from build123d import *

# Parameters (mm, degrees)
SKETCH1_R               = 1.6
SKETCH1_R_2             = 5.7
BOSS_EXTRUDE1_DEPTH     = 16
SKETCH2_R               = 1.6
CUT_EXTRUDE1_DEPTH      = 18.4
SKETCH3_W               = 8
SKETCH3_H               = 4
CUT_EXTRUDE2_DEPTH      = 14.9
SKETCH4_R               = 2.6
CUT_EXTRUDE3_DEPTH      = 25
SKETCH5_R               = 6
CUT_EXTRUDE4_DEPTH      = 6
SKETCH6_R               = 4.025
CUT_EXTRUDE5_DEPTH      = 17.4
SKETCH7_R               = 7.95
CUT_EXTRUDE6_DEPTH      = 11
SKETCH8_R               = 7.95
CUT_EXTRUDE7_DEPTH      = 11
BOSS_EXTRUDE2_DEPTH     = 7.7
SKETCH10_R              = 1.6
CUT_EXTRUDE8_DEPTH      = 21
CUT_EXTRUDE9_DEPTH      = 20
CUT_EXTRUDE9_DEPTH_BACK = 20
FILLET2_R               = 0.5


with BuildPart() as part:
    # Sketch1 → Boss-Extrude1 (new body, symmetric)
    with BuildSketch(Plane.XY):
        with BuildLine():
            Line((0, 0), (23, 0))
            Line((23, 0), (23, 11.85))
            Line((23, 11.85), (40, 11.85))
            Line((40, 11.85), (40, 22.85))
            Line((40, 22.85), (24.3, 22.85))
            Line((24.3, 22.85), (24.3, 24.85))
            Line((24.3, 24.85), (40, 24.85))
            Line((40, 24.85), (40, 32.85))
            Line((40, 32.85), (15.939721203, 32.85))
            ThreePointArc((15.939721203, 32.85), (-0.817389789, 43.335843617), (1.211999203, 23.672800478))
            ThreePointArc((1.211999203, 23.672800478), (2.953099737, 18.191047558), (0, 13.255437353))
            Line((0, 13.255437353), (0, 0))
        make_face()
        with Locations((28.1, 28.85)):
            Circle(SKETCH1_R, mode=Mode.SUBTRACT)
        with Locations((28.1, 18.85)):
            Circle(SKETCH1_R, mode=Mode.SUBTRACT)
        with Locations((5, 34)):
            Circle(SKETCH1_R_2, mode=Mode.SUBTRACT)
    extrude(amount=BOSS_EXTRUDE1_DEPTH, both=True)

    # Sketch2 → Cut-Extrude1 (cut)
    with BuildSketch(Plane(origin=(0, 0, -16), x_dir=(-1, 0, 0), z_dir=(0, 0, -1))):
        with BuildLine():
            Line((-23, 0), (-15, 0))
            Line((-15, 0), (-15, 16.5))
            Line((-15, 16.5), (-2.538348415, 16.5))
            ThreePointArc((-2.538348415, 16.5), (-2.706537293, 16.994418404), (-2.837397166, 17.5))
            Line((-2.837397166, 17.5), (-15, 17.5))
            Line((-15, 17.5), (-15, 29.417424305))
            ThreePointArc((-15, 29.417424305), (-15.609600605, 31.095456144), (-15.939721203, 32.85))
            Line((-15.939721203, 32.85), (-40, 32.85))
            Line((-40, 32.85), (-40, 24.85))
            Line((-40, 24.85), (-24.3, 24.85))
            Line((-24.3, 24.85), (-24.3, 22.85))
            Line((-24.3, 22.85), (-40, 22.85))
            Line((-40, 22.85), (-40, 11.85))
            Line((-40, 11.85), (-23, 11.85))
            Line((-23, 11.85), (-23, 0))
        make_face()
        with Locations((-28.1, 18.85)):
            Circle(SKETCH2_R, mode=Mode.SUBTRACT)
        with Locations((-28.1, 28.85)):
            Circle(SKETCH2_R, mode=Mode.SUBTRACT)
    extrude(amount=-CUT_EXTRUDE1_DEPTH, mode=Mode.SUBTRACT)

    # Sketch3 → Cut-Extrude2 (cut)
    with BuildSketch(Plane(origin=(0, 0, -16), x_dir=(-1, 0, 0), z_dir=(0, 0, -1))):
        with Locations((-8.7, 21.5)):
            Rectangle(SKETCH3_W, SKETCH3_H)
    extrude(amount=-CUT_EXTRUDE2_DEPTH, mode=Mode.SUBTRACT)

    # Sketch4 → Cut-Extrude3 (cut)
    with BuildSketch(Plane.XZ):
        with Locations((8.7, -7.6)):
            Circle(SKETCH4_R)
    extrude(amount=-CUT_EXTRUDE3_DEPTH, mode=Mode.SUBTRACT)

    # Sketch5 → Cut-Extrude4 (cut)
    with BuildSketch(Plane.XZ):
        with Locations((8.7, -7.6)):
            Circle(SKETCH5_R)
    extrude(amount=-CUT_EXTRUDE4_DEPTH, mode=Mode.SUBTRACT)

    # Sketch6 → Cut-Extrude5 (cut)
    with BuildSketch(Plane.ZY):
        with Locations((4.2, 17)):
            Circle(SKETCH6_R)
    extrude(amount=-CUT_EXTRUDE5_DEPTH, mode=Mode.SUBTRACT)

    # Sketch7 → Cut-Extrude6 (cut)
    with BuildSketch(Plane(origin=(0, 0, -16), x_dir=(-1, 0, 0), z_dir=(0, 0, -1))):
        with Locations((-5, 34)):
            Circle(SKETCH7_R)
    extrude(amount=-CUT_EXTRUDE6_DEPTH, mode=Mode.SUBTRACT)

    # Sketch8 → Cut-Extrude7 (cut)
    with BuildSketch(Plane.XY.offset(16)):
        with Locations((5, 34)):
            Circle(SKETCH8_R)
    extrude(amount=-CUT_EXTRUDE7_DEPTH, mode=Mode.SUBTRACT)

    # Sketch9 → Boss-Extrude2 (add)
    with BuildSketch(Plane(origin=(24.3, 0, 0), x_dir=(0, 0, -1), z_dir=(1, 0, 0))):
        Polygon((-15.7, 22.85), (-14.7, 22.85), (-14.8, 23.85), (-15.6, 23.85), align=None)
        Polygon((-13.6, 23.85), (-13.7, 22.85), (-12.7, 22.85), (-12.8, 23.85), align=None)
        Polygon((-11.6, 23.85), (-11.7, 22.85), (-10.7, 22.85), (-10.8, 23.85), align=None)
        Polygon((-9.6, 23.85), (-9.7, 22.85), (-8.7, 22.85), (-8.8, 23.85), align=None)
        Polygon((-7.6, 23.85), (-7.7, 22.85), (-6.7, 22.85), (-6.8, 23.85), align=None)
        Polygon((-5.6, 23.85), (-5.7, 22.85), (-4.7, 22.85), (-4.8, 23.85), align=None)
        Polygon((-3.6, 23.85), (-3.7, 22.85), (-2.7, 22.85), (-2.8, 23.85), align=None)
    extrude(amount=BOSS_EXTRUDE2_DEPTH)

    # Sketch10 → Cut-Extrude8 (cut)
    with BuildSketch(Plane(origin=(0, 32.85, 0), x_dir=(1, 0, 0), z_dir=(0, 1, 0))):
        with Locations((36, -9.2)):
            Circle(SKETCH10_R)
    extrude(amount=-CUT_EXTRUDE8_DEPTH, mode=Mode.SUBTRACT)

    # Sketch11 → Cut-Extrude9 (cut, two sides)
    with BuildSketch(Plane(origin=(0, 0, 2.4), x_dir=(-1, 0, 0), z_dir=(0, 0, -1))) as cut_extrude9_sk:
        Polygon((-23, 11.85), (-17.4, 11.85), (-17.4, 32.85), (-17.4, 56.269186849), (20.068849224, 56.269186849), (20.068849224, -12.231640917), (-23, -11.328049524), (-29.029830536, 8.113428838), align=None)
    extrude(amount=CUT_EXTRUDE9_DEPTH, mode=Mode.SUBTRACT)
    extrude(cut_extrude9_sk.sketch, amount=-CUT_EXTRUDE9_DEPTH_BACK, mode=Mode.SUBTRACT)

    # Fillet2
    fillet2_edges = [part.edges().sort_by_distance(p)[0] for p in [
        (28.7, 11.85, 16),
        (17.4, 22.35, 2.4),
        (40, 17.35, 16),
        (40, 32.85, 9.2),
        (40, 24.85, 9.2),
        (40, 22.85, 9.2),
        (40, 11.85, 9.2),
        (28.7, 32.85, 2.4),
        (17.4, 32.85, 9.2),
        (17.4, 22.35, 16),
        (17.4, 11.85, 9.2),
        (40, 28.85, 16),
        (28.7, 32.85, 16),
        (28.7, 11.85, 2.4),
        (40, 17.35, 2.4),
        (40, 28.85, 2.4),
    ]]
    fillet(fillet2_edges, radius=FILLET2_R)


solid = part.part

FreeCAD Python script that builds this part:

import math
import FreeCAD as App
import Part
import Sketcher


def edges_at(feature, points):
    """Names of the edges that pass closest to the given points."""
    edges = feature.Shape.Edges
    near = lambda p: min(range(len(edges)), key=lambda i: edges[i].distToShape(Part.Vertex(*p))[0])
    return sorted({f"Edge{near(p) + 1}" for p in points})

doc = App.newDocument("Part")
body = doc.addObject("PartDesign::Body", "Body")

# Sketch on XY plane
sketch1 = body.newObject("Sketcher::SketchObject", "Sketch")
sketch1.AttachmentSupport = (doc.getObject("XY_Plane"), [""])
sketch1.MapMode = "FlatFace"
sketch1.addGeometry([
    Part.LineSegment(App.Vector(0, 0, 0), App.Vector(23, 0, 0)),  # 0
    Part.LineSegment(App.Vector(23, 0, 0), App.Vector(23, 11.85, 0)),  # 1
    Part.LineSegment(App.Vector(23, 11.85, 0), App.Vector(40, 11.85, 0)),  # 2
    Part.LineSegment(App.Vector(40, 11.85, 0), App.Vector(40, 22.85, 0)),  # 3
    Part.LineSegment(App.Vector(40, 22.85, 0), App.Vector(24.3, 22.85, 0)),  # 4
    Part.LineSegment(App.Vector(24.3, 22.85, 0), App.Vector(24.3, 24.85, 0)),  # 5
    Part.LineSegment(App.Vector(24.3, 24.85, 0), App.Vector(40, 24.85, 0)),  # 6
    Part.LineSegment(App.Vector(40, 24.85, 0), App.Vector(40, 32.85, 0)),  # 7
    Part.LineSegment(App.Vector(40, 32.85, 0), App.Vector(15.939721, 32.85, 0)),  # 8
    Part.ArcOfCircle(Part.Circle(App.Vector(5, 34, 0), App.Vector(0, 0, 1), 11), math.radians(-6.000979), math.radians(249.857041)),  # 9
    Part.ArcOfCircle(Part.Circle(App.Vector(-4, 19, 0), App.Vector(0, 0, 1), 7), math.radians(-55.150095), math.radians(41.877709)),  # 10
    Part.LineSegment(App.Vector(0, 13.255437, 0), App.Vector(0, 0, 0)),  # 11
    Part.Circle(App.Vector(28.1, 18.85, 0), App.Vector(0, 0, 1), 1.6),  # 12
    Part.Circle(App.Vector(5, 34, 0), App.Vector(0, 0, 1), 5.7),  # 13
    Part.Circle(App.Vector(28.1, 28.85, 0), App.Vector(0, 0, 1), 1.6),  # 14
], False)
sketch1.addConstraint([
    Sketcher.Constraint("Coincident", 0, 2, 1, 1),
    Sketcher.Constraint("Coincident", 1, 2, 2, 1),
    Sketcher.Constraint("Coincident", 2, 2, 3, 1),
    Sketcher.Constraint("Coincident", 3, 2, 4, 1),
    Sketcher.Constraint("Coincident", 4, 2, 5, 1),
    Sketcher.Constraint("Coincident", 5, 2, 6, 1),
    Sketcher.Constraint("Coincident", 6, 2, 7, 1),
    Sketcher.Constraint("Coincident", 7, 2, 8, 1),
    Sketcher.Constraint("Coincident", 8, 2, 9, 1),
    Sketcher.Constraint("Coincident", 9, 2, 10, 2),
    Sketcher.Constraint("Coincident", 10, 1, 11, 1),
    Sketcher.Constraint("Coincident", 11, 2, 0, 1),
    Sketcher.Constraint("Horizontal", 0),
    Sketcher.Constraint("Vertical", 1),
    Sketcher.Constraint("Horizontal", 2),
    Sketcher.Constraint("Vertical", 3),
    Sketcher.Constraint("Horizontal", 4),
    Sketcher.Constraint("Vertical", 5),
    Sketcher.Constraint("Horizontal", 6),
    Sketcher.Constraint("Vertical", 7),
    Sketcher.Constraint("Horizontal", 8),
    Sketcher.Constraint("Vertical", 11),
    Sketcher.Constraint("Coincident", 11, 2, -1, 1),
    Sketcher.Constraint("Coincident", 13, 3, 9, 3),
    Sketcher.Constraint("Equal", 12, 14),
    Sketcher.Constraint("Vertical", 12, 3, 14, 3),
    Sketcher.Constraint("Vertical", 3, 2, 6, 2),
    Sketcher.Constraint("Radius", 9, 11.0),
    Sketcher.Constraint("Radius", 10, 7.0),
    Sketcher.Constraint("Diameter", 12, 3.2),
    Sketcher.Constraint("Diameter", 13, 11.4),
    Sketcher.Constraint("DistanceX", 0, 1, 0, 2, 23.0),
    Sketcher.Constraint("DistanceX", 2, 1, 2, 2, 17.0),
    Sketcher.Constraint("DistanceY", 3, 1, 3, 2, 11.0),
    Sketcher.Constraint("DistanceY", 5, 1, 5, 2, 2.0),
    Sketcher.Constraint("DistanceY", 7, 1, 7, 2, 8.0),
    Sketcher.Constraint("DistanceX", 4, 2, 4, 1, 15.7),
    Sketcher.Constraint("DistanceX", -1, 1, 9, 3, 5.0),
    Sketcher.Constraint("DistanceY", -1, 1, 9, 3, 34.0),
    Sketcher.Constraint("DistanceX", 10, 3, -1, 1, 4.0),
    Sketcher.Constraint("DistanceY", -1, 1, 10, 3, 19.0),
    Sketcher.Constraint("DistanceY", 12, 3, 14, 3, 10.0),
    Sketcher.Constraint("DistanceY", 1, 2, 12, 3, 7.0),
    Sketcher.Constraint("DistanceY", 1, 1, 1, 2, 11.85),
    Sketcher.Constraint("DistanceX", -1, 1, 12, 3, 28.1),
])
pad1 = body.newObject("PartDesign::Pad", "Pad")
pad1.Profile = sketch1
pad1.Length = 32
pad1.Midplane = True

# Sketch on XY plane
sketch2 = body.newObject("Sketcher::SketchObject", "Sketch001")
sketch2.AttachmentSupport = (doc.getObject("XY_Plane"), [""])
sketch2.MapMode = "FlatFace"
sketch2.AttachmentOffset = App.Placement(App.Vector(0, 0, -16), App.Rotation())
sketch2.addGeometry([
    Part.LineSegment(App.Vector(23, 0, 0), App.Vector(15, 0, 0)),  # 0
    Part.LineSegment(App.Vector(15, 0, 0), App.Vector(15, 16.5, 0)),  # 1
    Part.LineSegment(App.Vector(15, 16.5, 0), App.Vector(2.538348, 16.5, 0)),  # 2
    Part.ArcOfCircle(Part.Circle(App.Vector(-4, 19, 0), App.Vector(0, 0, 1), 7), math.radians(-20.924832), math.radians(-12.373625)),  # 3
    Part.LineSegment(App.Vector(2.837397, 17.5, 0), App.Vector(15, 17.5, 0)),  # 4
    Part.LineSegment(App.Vector(15, 17.5, 0), App.Vector(15, 29.417424, 0)),  # 5
    Part.ArcOfCircle(Part.Circle(App.Vector(5, 34, 0), App.Vector(0, 0, 1), 11), math.radians(-24.619977), math.radians(-6.000979)),  # 6
    Part.LineSegment(App.Vector(15.939721, 32.85, 0), App.Vector(40, 32.85, 0)),  # 7
    Part.LineSegment(App.Vector(40, 32.85, 0), App.Vector(40, 24.85, 0)),  # 8
    Part.LineSegment(App.Vector(40, 24.85, 0), App.Vector(24.3, 24.85, 0)),  # 9
    Part.LineSegment(App.Vector(24.3, 24.85, 0), App.Vector(24.3, 22.85, 0)),  # 10
    Part.LineSegment(App.Vector(24.3, 22.85, 0), App.Vector(40, 22.85, 0)),  # 11
    Part.LineSegment(App.Vector(40, 22.85, 0), App.Vector(40, 11.85, 0)),  # 12
    Part.LineSegment(App.Vector(40, 11.85, 0), App.Vector(23, 11.85, 0)),  # 13
    Part.LineSegment(App.Vector(23, 11.85, 0), App.Vector(23, 0, 0)),  # 14
    Part.Circle(App.Vector(28.1, 18.85, 0), App.Vector(0, 0, 1), 1.6),  # 15
    Part.Circle(App.Vector(28.1, 28.85, 0), App.Vector(0, 0, 1), 1.6),  # 16
], False)
sketch2.addConstraint([
    Sketcher.Constraint("Coincident", 0, 2, 1, 1),
    Sketcher.Constraint("Coincident", 1, 2, 2, 1),
    Sketcher.Constraint("Coincident", 2, 2, 3, 1),
    Sketcher.Constraint("Coincident", 3, 2, 4, 1),
    Sketcher.Constraint("Coincident", 4, 2, 5, 1),
    Sketcher.Constraint("Coincident", 5, 2, 6, 1),
    Sketcher.Constraint("Coincident", 6, 2, 7, 1),
    Sketcher.Constraint("Coincident", 7, 2, 8, 1),
    Sketcher.Constraint("Coincident", 8, 2, 9, 1),
    Sketcher.Constraint("Coincident", 9, 2, 10, 1),
    Sketcher.Constraint("Coincident", 10, 2, 11, 1),
    Sketcher.Constraint("Coincident", 11, 2, 12, 1),
    Sketcher.Constraint("Coincident", 12, 2, 13, 1),
    Sketcher.Constraint("Coincident", 13, 2, 14, 1),
    Sketcher.Constraint("Coincident", 14, 2, 0, 1),
    Sketcher.Constraint("Horizontal", 0),
    Sketcher.Constraint("Vertical", 1),
    Sketcher.Constraint("Horizontal", 2),
    Sketcher.Constraint("Horizontal", 4),
    Sketcher.Constraint("Vertical", 5),
    Sketcher.Constraint("Horizontal", 7),
    Sketcher.Constraint("Vertical", 8),
    Sketcher.Constraint("Horizontal", 9),
    Sketcher.Constraint("Vertical", 10),
    Sketcher.Constraint("Horizontal", 11),
    Sketcher.Constraint("Vertical", 12),
    Sketcher.Constraint("Horizontal", 13),
    Sketcher.Constraint("Vertical", 14),
    Sketcher.Constraint("Equal", 15, 16),
    Sketcher.Constraint("PointOnObject", 0, 2, -1),
    Sketcher.Constraint("Vertical", 15, 3, 16, 3),
    Sketcher.Constraint("Vertical", 1, 2, 4, 2),
    Sketcher.Constraint("Vertical", 8, 2, 11, 2),
    Sketcher.Constraint("Equal", 0, 8),
    Sketcher.Constraint("Radius", 3, 7.0),
    Sketcher.Constraint("Radius", 6, 11.0),
    Sketcher.Constraint("Diameter", 15, 3.2),
    Sketcher.Constraint("DistanceX", 0, 2, 0, 1, 8.0),
    Sketcher.Constraint("DistanceX", 13, 2, 13, 1, 17.0),
    Sketcher.Constraint("DistanceY", 10, 2, 10, 1, 2.0),
    Sketcher.Constraint("DistanceY", 12, 2, 12, 1, 11.0),
    Sketcher.Constraint("DistanceX", 9, 2, 9, 1, 15.7),
    Sketcher.Constraint("DistanceY", 1, 1, 1, 2, 16.5),
    Sketcher.Constraint("DistanceX", 3, 3, -1, 1, 4.0),
    Sketcher.Constraint("DistanceY", -1, 1, 3, 3, 19.0),
    Sketcher.Constraint("DistanceX", -1, 1, 6, 3, 5.0),
    Sketcher.Constraint("DistanceY", -1, 1, 6, 3, 34.0),
    Sketcher.Constraint("DistanceX", -1, 1, 0, 2, 15.0),
    Sketcher.Constraint("DistanceY", 15, 3, 16, 3, 10.0),
    Sketcher.Constraint("DistanceY", 2, 2, 3, 2, 1.0),
    Sketcher.Constraint("DistanceY", 16, 3, 6, 2, 4.0),
    Sketcher.Constraint("DistanceY", 14, 2, 14, 1, 11.85),
    Sketcher.Constraint("DistanceX", -1, 1, 15, 3, 28.1),
])
pocket1 = body.newObject("PartDesign::Pocket", "Pocket")
pocket1.Profile = sketch2
pocket1.Length = 18.4
pocket1.Reversed = True

# Sketch on XY plane
sketch3 = body.newObject("Sketcher::SketchObject", "Sketch002")
sketch3.AttachmentSupport = (doc.getObject("XY_Plane"), [""])
sketch3.MapMode = "FlatFace"
sketch3.AttachmentOffset = App.Placement(App.Vector(0, 0, -16), App.Rotation())
sketch3.addGeometry([
    Part.LineSegment(App.Vector(12.7, 23.5, 0), App.Vector(12.7, 19.5, 0)),
    Part.LineSegment(App.Vector(12.7, 19.5, 0), App.Vector(4.7, 19.5, 0)),
    Part.LineSegment(App.Vector(4.7, 19.5, 0), App.Vector(4.7, 23.5, 0)),
    Part.LineSegment(App.Vector(4.7, 23.5, 0), App.Vector(12.7, 23.5, 0)),
], False)
sketch3.addConstraint([
    Sketcher.Constraint("Coincident", 0, 2, 1, 1),
    Sketcher.Constraint("Coincident", 1, 2, 2, 1),
    Sketcher.Constraint("Coincident", 2, 2, 3, 1),
    Sketcher.Constraint("Coincident", 3, 2, 0, 1),
    Sketcher.Constraint("Vertical", 0),
    Sketcher.Constraint("Horizontal", 1),
    Sketcher.Constraint("Vertical", 2),
    Sketcher.Constraint("Horizontal", 3),
    Sketcher.Constraint("DistanceX", 1, 2, 1, 1, 8.0),
    Sketcher.Constraint("DistanceY", 0, 2, 0, 1, 4.0),
    Sketcher.Constraint("DistanceX", -1, 1, 0, 2, 12.7),
    Sketcher.Constraint("DistanceY", -1, 1, 0, 2, 19.5),
])
pocket2 = body.newObject("PartDesign::Pocket", "Pocket001")
pocket2.Profile = sketch3
pocket2.Length = 14.9
pocket2.Reversed = True

# Sketch on XZ plane
sketch4 = body.newObject("Sketcher::SketchObject", "Sketch003")
sketch4.AttachmentSupport = (doc.getObject("XZ_Plane"), [""])
sketch4.MapMode = "FlatFace"
sketch4.addGeometry(Part.Circle(App.Vector(8.7, -7.6, 0), App.Vector(0, 0, 1), 2.6), False)
sketch4.addConstraint([
    Sketcher.Constraint("Diameter", 0, 5.2),
    Sketcher.Constraint("DistanceX", -1, 1, 0, 3, 8.7),
    Sketcher.Constraint("DistanceY", 0, 3, -1, 1, 7.6),
])
pocket3 = body.newObject("PartDesign::Pocket", "Pocket002")
pocket3.Profile = sketch4
pocket3.Length = 25

# Sketch on XZ plane
sketch5 = body.newObject("Sketcher::SketchObject", "Sketch004")
sketch5.AttachmentSupport = (doc.getObject("XZ_Plane"), [""])
sketch5.MapMode = "FlatFace"
sketch5.addGeometry(Part.Circle(App.Vector(8.7, -7.6, 0), App.Vector(0, 0, 1), 6), False)
sketch5.addConstraint([
    Sketcher.Constraint("Diameter", 0, 12.0),
    Sketcher.Constraint("DistanceX", -1, 1, 0, 3, 8.7),
    Sketcher.Constraint("DistanceY", 0, 3, -1, 1, 7.6),
])
pocket4 = body.newObject("PartDesign::Pocket", "Pocket003")
pocket4.Profile = sketch5
pocket4.Length = 6

# Sketch on YZ plane
sketch6 = body.newObject("Sketcher::SketchObject", "Sketch005")
sketch6.AttachmentSupport = (doc.getObject("YZ_Plane"), [""])
sketch6.MapMode = "FlatFace"
sketch6.addGeometry(Part.Circle(App.Vector(17, 4.2, 0), App.Vector(0, 0, 1), 4.025), False)
sketch6.addConstraint([
    Sketcher.Constraint("Diameter", 0, 8.05),
    Sketcher.Constraint("DistanceX", -1, 1, 0, 3, 17.0),
    Sketcher.Constraint("DistanceY", -1, 1, 0, 3, 4.2),
])
pocket5 = body.newObject("PartDesign::Pocket", "Pocket004")
pocket5.Profile = sketch6
pocket5.Length = 17.4
pocket5.Reversed = True

# Sketch on XY plane
sketch7 = body.newObject("Sketcher::SketchObject", "Sketch006")
sketch7.AttachmentSupport = (doc.getObject("XY_Plane"), [""])
sketch7.MapMode = "FlatFace"
sketch7.AttachmentOffset = App.Placement(App.Vector(0, 0, -16), App.Rotation())
sketch7.addGeometry(Part.Circle(App.Vector(5, 34, 0), App.Vector(0, 0, 1), 7.95), False)
sketch7.addConstraint([
    Sketcher.Constraint("Diameter", 0, 15.9),
    Sketcher.Constraint("DistanceX", -1, 1, 0, 3, 5.0),
    Sketcher.Constraint("DistanceY", -1, 1, 0, 3, 34.0),
])
pocket6 = body.newObject("PartDesign::Pocket", "Pocket005")
pocket6.Profile = sketch7
pocket6.Length = 11
pocket6.Reversed = True

# Sketch on XY plane
sketch8 = body.newObject("Sketcher::SketchObject", "Sketch007")
sketch8.AttachmentSupport = (doc.getObject("XY_Plane"), [""])
sketch8.MapMode = "FlatFace"
sketch8.AttachmentOffset = App.Placement(App.Vector(0, 0, 16), App.Rotation())
sketch8.addGeometry(Part.Circle(App.Vector(5, 34, 0), App.Vector(0, 0, 1), 7.95), False)
sketch8.addConstraint([
    Sketcher.Constraint("Diameter", 0, 15.9),
    Sketcher.Constraint("DistanceX", -1, 1, 0, 3, 5.0),
    Sketcher.Constraint("DistanceY", -1, 1, 0, 3, 34.0),
])
pocket7 = body.newObject("PartDesign::Pocket", "Pocket006")
pocket7.Profile = sketch8
pocket7.Length = 11

# Sketch on YZ plane
sketch9 = body.newObject("Sketcher::SketchObject", "Sketch008")
sketch9.AttachmentSupport = (doc.getObject("YZ_Plane"), [""])
sketch9.MapMode = "FlatFace"
sketch9.AttachmentOffset = App.Placement(App.Vector(0, 0, 24.3), App.Rotation())
sketch9.addGeometry([
    Part.LineSegment(App.Vector(22.85, 15.7, 0), App.Vector(22.85, 14.7, 0)),  # 0
    Part.LineSegment(App.Vector(22.85, 14.7, 0), App.Vector(23.85, 14.8, 0)),  # 1
    Part.LineSegment(App.Vector(23.85, 14.8, 0), App.Vector(23.85, 15.6, 0)),  # 2
    Part.LineSegment(App.Vector(23.85, 15.6, 0), App.Vector(22.85, 15.7, 0)),  # 3
    Part.LineSegment(App.Vector(23.85, 13.6, 0), App.Vector(22.85, 13.7, 0)),  # 4
    Part.LineSegment(App.Vector(22.85, 13.7, 0), App.Vector(22.85, 12.7, 0)),  # 5
    Part.LineSegment(App.Vector(22.85, 12.7, 0), App.Vector(23.85, 12.8, 0)),  # 6
    Part.LineSegment(App.Vector(23.85, 12.8, 0), App.Vector(23.85, 13.6, 0)),  # 7
    Part.LineSegment(App.Vector(23.85, 11.6, 0), App.Vector(22.85, 11.7, 0)),  # 8
    Part.LineSegment(App.Vector(22.85, 11.7, 0), App.Vector(22.85, 10.7, 0)),  # 9
    Part.LineSegment(App.Vector(22.85, 10.7, 0), App.Vector(23.85, 10.8, 0)),  # 10
    Part.LineSegment(App.Vector(23.85, 10.8, 0), App.Vector(23.85, 11.6, 0)),  # 11
    Part.LineSegment(App.Vector(23.85, 9.6, 0), App.Vector(22.85, 9.7, 0)),  # 12
    Part.LineSegment(App.Vector(22.85, 9.7, 0), App.Vector(22.85, 8.7, 0)),  # 13
    Part.LineSegment(App.Vector(22.85, 8.7, 0), App.Vector(23.85, 8.8, 0)),  # 14
    Part.LineSegment(App.Vector(23.85, 8.8, 0), App.Vector(23.85, 9.6, 0)),  # 15
    Part.LineSegment(App.Vector(23.85, 7.6, 0), App.Vector(22.85, 7.7, 0)),  # 16
    Part.LineSegment(App.Vector(22.85, 7.7, 0), App.Vector(22.85, 6.7, 0)),  # 17
    Part.LineSegment(App.Vector(22.85, 6.7, 0), App.Vector(23.85, 6.8, 0)),  # 18
    Part.LineSegment(App.Vector(23.85, 6.8, 0), App.Vector(23.85, 7.6, 0)),  # 19
    Part.LineSegment(App.Vector(23.85, 5.6, 0), App.Vector(22.85, 5.7, 0)),  # 20
    Part.LineSegment(App.Vector(22.85, 5.7, 0), App.Vector(22.85, 4.7, 0)),  # 21
    Part.LineSegment(App.Vector(22.85, 4.7, 0), App.Vector(23.85, 4.8, 0)),  # 22
    Part.LineSegment(App.Vector(23.85, 4.8, 0), App.Vector(23.85, 5.6, 0)),  # 23
    Part.LineSegment(App.Vector(23.85, 3.6, 0), App.Vector(22.85, 3.7, 0)),  # 24
    Part.LineSegment(App.Vector(22.85, 3.7, 0), App.Vector(22.85, 2.7, 0)),  # 25
    Part.LineSegment(App.Vector(22.85, 2.7, 0), App.Vector(23.85, 2.8, 0)),  # 26
    Part.LineSegment(App.Vector(23.85, 2.8, 0), App.Vector(23.85, 3.6, 0)),  # 27
], False)
sketch9.addConstraint([
    Sketcher.Constraint("Coincident", 0, 2, 1, 1),
    Sketcher.Constraint("Coincident", 1, 2, 2, 1),
    Sketcher.Constraint("Coincident", 2, 2, 3, 1),
    Sketcher.Constraint("Coincident", 3, 2, 0, 1),
    Sketcher.Constraint("Coincident", 4, 2, 5, 1),
    Sketcher.Constraint("Coincident", 5, 2, 6, 1),
    Sketcher.Constraint("Coincident", 6, 2, 7, 1),
    Sketcher.Constraint("Coincident", 7, 2, 4, 1),
    Sketcher.Constraint("Coincident", 8, 2, 9, 1),
    Sketcher.Constraint("Coincident", 9, 2, 10, 1),
    Sketcher.Constraint("Coincident", 10, 2, 11, 1),
    Sketcher.Constraint("Coincident", 11, 2, 8, 1),
    Sketcher.Constraint("Coincident", 12, 2, 13, 1),
    Sketcher.Constraint("Coincident", 13, 2, 14, 1),
    Sketcher.Constraint("Coincident", 14, 2, 15, 1),
    Sketcher.Constraint("Coincident", 15, 2, 12, 1),
    Sketcher.Constraint("Coincident", 16, 2, 17, 1),
    Sketcher.Constraint("Coincident", 17, 2, 18, 1),
    Sketcher.Constraint("Coincident", 18, 2, 19, 1),
    Sketcher.Constraint("Coincident", 19, 2, 16, 1),
    Sketcher.Constraint("Coincident", 20, 2, 21, 1),
    Sketcher.Constraint("Coincident", 21, 2, 22, 1),
    Sketcher.Constraint("Coincident", 22, 2, 23, 1),
    Sketcher.Constraint("Coincident", 23, 2, 20, 1),
    Sketcher.Constraint("Coincident", 24, 2, 25, 1),
    Sketcher.Constraint("Coincident", 25, 2, 26, 1),
    Sketcher.Constraint("Coincident", 26, 2, 27, 1),
    Sketcher.Constraint("Coincident", 27, 2, 24, 1),
    Sketcher.Constraint("Vertical", 0),
    Sketcher.Constraint("Vertical", 2),
    Sketcher.Constraint("Vertical", 5),
    Sketcher.Constraint("Vertical", 7),
    Sketcher.Constraint("Vertical", 9),
    Sketcher.Constraint("Vertical", 11),
    Sketcher.Constraint("Vertical", 13),
    Sketcher.Constraint("Vertical", 15),
    Sketcher.Constraint("Vertical", 17),
    Sketcher.Constraint("Vertical", 19),
    Sketcher.Constraint("Vertical", 21),
    Sketcher.Constraint("Vertical", 23),
    Sketcher.Constraint("Vertical", 25),
    Sketcher.Constraint("Vertical", 27),
    Sketcher.Constraint("Parallel", 3, 4),
    Sketcher.Constraint("Parallel", 1, 6),
    Sketcher.Constraint("Parallel", 4, 8),
    Sketcher.Constraint("Parallel", 6, 10),
    Sketcher.Constraint("Parallel", 8, 12),
    Sketcher.Constraint("Parallel", 10, 14),
    Sketcher.Constraint("Parallel", 12, 16),
    Sketcher.Constraint("Parallel", 14, 18),
    Sketcher.Constraint("Parallel", 16, 20),
    Sketcher.Constraint("Parallel", 18, 22),
    Sketcher.Constraint("Parallel", 20, 24),
    Sketcher.Constraint("Parallel", 22, 26),
    Sketcher.Constraint("Vertical", 3, 2, 4, 2),
    Sketcher.Constraint("Vertical", 2, 2, 6, 2),
    Sketcher.Constraint("Vertical", 5, 2, 8, 2),
    Sketcher.Constraint("Vertical", 7, 2, 10, 2),
    Sketcher.Constraint("Vertical", 9, 2, 12, 2),
    Sketcher.Constraint("Vertical", 11, 2, 14, 2),
    Sketcher.Constraint("Vertical", 13, 2, 16, 2),
    Sketcher.Constraint("Vertical", 15, 2, 18, 2),
    Sketcher.Constraint("Vertical", 17, 2, 20, 2),
    Sketcher.Constraint("Vertical", 19, 2, 22, 2),
    Sketcher.Constraint("Vertical", 21, 2, 24, 2),
    Sketcher.Constraint("Vertical", 23, 2, 26, 2),
    Sketcher.Constraint("Equal", 0, 5),
    Sketcher.Constraint("Equal", 5, 9),
    Sketcher.Constraint("Equal", 9, 13),
    Sketcher.Constraint("Equal", 13, 17),
    Sketcher.Constraint("Equal", 17, 21),
    Sketcher.Constraint("Equal", 21, 25),
    Sketcher.Constraint("Equal", 1, 3),
    Sketcher.Constraint("DistanceY", 0, 2, 0, 1, 1.0),
    Sketcher.Constraint("DistanceY", 2, 1, 2, 2, 0.8),
    Sketcher.Constraint("DistanceX", 0, 2, 1, 2, 1.0),
    Sketcher.Constraint("DistanceY", 4, 2, 0, 2, 1.0),
    Sketcher.Constraint("DistanceY", 8, 2, 5, 2, 1.0),
    Sketcher.Constraint("DistanceY", 12, 2, 9, 2, 1.0),
    Sketcher.Constraint("DistanceY", 16, 2, 13, 2, 1.0),
    Sketcher.Constraint("DistanceY", 20, 2, 17, 2, 1.0),
    Sketcher.Constraint("DistanceY", 24, 2, 21, 2, 1.0),
    Sketcher.Constraint("DistanceY", -1, 1, 0, 2, 14.7),
    Sketcher.Constraint("DistanceX", -1, 1, 0, 2, 22.85),
])
pad2 = body.newObject("PartDesign::Pad", "Pad001")
pad2.Profile = sketch9
pad2.Length = 7.7

# Sketch on XZ plane
sketch10 = body.newObject("Sketcher::SketchObject", "Sketch009")
sketch10.AttachmentSupport = (doc.getObject("XZ_Plane"), [""])
sketch10.MapMode = "FlatFace"
sketch10.AttachmentOffset = App.Placement(App.Vector(0, 0, -32.85), App.Rotation())
sketch10.addGeometry(Part.Circle(App.Vector(36, 9.2, 0), App.Vector(0, 0, 1), 1.6), False)
sketch10.addConstraint([
    Sketcher.Constraint("Diameter", 0, 3.2),
    Sketcher.Constraint("DistanceX", -1, 1, 0, 3, 36.0),
    Sketcher.Constraint("DistanceY", -1, 1, 0, 3, 9.2),
])
pocket8 = body.newObject("PartDesign::Pocket", "Pocket007")
pocket8.Profile = sketch10
pocket8.Length = 21
pocket8.Reversed = True

# Sketch on XY plane
sketch11 = body.newObject("Sketcher::SketchObject", "Sketch010")
sketch11.AttachmentSupport = (doc.getObject("XY_Plane"), [""])
sketch11.MapMode = "FlatFace"
sketch11.AttachmentOffset = App.Placement(App.Vector(0, 0, 2.4), App.Rotation())
sketch11.addGeometry([
    Part.LineSegment(App.Vector(17.4, 11.85, 0), App.Vector(23, 11.85, 0)),  # 0
    Part.LineSegment(App.Vector(23, 11.85, 0), App.Vector(29.029831, 8.113429, 0)),  # 1
    Part.LineSegment(App.Vector(29.029831, 8.113429, 0), App.Vector(23, -11.32805, 0)),  # 2
    Part.LineSegment(App.Vector(23, -11.32805, 0), App.Vector(-20.068849, -12.231641, 0)),  # 3
    Part.LineSegment(App.Vector(-20.068849, -12.231641, 0), App.Vector(-20.068849, 56.269187, 0)),  # 4
    Part.LineSegment(App.Vector(-20.068849, 56.269187, 0), App.Vector(17.4, 56.269187, 0)),  # 5
    Part.LineSegment(App.Vector(17.4, 56.269187, 0), App.Vector(17.4, 11.85, 0)),  # 6
], False)
sketch11.addConstraint([
    Sketcher.Constraint("Coincident", 0, 2, 1, 1),
    Sketcher.Constraint("Coincident", 1, 2, 2, 1),
    Sketcher.Constraint("Coincident", 2, 2, 3, 1),
    Sketcher.Constraint("Coincident", 3, 2, 4, 1),
    Sketcher.Constraint("Coincident", 4, 2, 5, 1),
    Sketcher.Constraint("Coincident", 5, 2, 6, 1),
    Sketcher.Constraint("Coincident", 6, 2, 0, 1),
    Sketcher.Constraint("Horizontal", 0),
    Sketcher.Constraint("Vertical", 4),
    Sketcher.Constraint("Horizontal", 5),
    Sketcher.Constraint("Vertical", 6),
    Sketcher.Constraint("Vertical", 0, 2, 2, 2),
    Sketcher.Constraint("DistanceX", 0, 1, 0, 2, 5.6),
    Sketcher.Constraint("DistanceX", -1, 1, 0, 2, 23.0),
    Sketcher.Constraint("DistanceY", -1, 1, 0, 2, 11.85),
    Sketcher.Constraint("DistanceX", 5, 1, 5, 2, 37.468849),
    Sketcher.Constraint("DistanceY", 4, 1, 4, 2, 68.500828),
    Sketcher.Constraint("DistanceY", 6, 2, 6, 1, 44.419187),
    Sketcher.Constraint("DistanceX", -1, 1, 1, 2, 29.029831),
    Sketcher.Constraint("DistanceY", -1, 1, 1, 2, 8.113429),
    Sketcher.Constraint("DistanceY", 2, 2, -1, 1, 11.32805),
])
pocket9 = body.newObject("PartDesign::Pocket", "Pocket008")
pocket9.Profile = sketch11
pocket9.Type = "ThroughAll"
pocket9.Midplane = True
doc.recompute()

fillet = body.newObject("PartDesign::Fillet", "Fillet")
fillet.Base = (pocket9, edges_at(pocket9, [
    (28.7, 11.85, 16),
    (17.4, 22.35, 2.4),
    (40, 17.35, 16),
    (40, 32.85, 9.2),
    (40, 24.85, 9.2),
    (40, 22.85, 9.2),
    (40, 11.85, 9.2),
    (28.7, 32.85, 2.4),
    (17.4, 32.85, 9.2),
    (17.4, 22.35, 16),
    (17.4, 11.85, 9.2),
    (40, 28.85, 16),
    (28.7, 32.85, 16),
    (28.7, 11.85, 2.4),
    (40, 17.35, 2.4),
    (40, 28.85, 2.4),
]))
fillet.Radius = 0.5

doc.recompute()
